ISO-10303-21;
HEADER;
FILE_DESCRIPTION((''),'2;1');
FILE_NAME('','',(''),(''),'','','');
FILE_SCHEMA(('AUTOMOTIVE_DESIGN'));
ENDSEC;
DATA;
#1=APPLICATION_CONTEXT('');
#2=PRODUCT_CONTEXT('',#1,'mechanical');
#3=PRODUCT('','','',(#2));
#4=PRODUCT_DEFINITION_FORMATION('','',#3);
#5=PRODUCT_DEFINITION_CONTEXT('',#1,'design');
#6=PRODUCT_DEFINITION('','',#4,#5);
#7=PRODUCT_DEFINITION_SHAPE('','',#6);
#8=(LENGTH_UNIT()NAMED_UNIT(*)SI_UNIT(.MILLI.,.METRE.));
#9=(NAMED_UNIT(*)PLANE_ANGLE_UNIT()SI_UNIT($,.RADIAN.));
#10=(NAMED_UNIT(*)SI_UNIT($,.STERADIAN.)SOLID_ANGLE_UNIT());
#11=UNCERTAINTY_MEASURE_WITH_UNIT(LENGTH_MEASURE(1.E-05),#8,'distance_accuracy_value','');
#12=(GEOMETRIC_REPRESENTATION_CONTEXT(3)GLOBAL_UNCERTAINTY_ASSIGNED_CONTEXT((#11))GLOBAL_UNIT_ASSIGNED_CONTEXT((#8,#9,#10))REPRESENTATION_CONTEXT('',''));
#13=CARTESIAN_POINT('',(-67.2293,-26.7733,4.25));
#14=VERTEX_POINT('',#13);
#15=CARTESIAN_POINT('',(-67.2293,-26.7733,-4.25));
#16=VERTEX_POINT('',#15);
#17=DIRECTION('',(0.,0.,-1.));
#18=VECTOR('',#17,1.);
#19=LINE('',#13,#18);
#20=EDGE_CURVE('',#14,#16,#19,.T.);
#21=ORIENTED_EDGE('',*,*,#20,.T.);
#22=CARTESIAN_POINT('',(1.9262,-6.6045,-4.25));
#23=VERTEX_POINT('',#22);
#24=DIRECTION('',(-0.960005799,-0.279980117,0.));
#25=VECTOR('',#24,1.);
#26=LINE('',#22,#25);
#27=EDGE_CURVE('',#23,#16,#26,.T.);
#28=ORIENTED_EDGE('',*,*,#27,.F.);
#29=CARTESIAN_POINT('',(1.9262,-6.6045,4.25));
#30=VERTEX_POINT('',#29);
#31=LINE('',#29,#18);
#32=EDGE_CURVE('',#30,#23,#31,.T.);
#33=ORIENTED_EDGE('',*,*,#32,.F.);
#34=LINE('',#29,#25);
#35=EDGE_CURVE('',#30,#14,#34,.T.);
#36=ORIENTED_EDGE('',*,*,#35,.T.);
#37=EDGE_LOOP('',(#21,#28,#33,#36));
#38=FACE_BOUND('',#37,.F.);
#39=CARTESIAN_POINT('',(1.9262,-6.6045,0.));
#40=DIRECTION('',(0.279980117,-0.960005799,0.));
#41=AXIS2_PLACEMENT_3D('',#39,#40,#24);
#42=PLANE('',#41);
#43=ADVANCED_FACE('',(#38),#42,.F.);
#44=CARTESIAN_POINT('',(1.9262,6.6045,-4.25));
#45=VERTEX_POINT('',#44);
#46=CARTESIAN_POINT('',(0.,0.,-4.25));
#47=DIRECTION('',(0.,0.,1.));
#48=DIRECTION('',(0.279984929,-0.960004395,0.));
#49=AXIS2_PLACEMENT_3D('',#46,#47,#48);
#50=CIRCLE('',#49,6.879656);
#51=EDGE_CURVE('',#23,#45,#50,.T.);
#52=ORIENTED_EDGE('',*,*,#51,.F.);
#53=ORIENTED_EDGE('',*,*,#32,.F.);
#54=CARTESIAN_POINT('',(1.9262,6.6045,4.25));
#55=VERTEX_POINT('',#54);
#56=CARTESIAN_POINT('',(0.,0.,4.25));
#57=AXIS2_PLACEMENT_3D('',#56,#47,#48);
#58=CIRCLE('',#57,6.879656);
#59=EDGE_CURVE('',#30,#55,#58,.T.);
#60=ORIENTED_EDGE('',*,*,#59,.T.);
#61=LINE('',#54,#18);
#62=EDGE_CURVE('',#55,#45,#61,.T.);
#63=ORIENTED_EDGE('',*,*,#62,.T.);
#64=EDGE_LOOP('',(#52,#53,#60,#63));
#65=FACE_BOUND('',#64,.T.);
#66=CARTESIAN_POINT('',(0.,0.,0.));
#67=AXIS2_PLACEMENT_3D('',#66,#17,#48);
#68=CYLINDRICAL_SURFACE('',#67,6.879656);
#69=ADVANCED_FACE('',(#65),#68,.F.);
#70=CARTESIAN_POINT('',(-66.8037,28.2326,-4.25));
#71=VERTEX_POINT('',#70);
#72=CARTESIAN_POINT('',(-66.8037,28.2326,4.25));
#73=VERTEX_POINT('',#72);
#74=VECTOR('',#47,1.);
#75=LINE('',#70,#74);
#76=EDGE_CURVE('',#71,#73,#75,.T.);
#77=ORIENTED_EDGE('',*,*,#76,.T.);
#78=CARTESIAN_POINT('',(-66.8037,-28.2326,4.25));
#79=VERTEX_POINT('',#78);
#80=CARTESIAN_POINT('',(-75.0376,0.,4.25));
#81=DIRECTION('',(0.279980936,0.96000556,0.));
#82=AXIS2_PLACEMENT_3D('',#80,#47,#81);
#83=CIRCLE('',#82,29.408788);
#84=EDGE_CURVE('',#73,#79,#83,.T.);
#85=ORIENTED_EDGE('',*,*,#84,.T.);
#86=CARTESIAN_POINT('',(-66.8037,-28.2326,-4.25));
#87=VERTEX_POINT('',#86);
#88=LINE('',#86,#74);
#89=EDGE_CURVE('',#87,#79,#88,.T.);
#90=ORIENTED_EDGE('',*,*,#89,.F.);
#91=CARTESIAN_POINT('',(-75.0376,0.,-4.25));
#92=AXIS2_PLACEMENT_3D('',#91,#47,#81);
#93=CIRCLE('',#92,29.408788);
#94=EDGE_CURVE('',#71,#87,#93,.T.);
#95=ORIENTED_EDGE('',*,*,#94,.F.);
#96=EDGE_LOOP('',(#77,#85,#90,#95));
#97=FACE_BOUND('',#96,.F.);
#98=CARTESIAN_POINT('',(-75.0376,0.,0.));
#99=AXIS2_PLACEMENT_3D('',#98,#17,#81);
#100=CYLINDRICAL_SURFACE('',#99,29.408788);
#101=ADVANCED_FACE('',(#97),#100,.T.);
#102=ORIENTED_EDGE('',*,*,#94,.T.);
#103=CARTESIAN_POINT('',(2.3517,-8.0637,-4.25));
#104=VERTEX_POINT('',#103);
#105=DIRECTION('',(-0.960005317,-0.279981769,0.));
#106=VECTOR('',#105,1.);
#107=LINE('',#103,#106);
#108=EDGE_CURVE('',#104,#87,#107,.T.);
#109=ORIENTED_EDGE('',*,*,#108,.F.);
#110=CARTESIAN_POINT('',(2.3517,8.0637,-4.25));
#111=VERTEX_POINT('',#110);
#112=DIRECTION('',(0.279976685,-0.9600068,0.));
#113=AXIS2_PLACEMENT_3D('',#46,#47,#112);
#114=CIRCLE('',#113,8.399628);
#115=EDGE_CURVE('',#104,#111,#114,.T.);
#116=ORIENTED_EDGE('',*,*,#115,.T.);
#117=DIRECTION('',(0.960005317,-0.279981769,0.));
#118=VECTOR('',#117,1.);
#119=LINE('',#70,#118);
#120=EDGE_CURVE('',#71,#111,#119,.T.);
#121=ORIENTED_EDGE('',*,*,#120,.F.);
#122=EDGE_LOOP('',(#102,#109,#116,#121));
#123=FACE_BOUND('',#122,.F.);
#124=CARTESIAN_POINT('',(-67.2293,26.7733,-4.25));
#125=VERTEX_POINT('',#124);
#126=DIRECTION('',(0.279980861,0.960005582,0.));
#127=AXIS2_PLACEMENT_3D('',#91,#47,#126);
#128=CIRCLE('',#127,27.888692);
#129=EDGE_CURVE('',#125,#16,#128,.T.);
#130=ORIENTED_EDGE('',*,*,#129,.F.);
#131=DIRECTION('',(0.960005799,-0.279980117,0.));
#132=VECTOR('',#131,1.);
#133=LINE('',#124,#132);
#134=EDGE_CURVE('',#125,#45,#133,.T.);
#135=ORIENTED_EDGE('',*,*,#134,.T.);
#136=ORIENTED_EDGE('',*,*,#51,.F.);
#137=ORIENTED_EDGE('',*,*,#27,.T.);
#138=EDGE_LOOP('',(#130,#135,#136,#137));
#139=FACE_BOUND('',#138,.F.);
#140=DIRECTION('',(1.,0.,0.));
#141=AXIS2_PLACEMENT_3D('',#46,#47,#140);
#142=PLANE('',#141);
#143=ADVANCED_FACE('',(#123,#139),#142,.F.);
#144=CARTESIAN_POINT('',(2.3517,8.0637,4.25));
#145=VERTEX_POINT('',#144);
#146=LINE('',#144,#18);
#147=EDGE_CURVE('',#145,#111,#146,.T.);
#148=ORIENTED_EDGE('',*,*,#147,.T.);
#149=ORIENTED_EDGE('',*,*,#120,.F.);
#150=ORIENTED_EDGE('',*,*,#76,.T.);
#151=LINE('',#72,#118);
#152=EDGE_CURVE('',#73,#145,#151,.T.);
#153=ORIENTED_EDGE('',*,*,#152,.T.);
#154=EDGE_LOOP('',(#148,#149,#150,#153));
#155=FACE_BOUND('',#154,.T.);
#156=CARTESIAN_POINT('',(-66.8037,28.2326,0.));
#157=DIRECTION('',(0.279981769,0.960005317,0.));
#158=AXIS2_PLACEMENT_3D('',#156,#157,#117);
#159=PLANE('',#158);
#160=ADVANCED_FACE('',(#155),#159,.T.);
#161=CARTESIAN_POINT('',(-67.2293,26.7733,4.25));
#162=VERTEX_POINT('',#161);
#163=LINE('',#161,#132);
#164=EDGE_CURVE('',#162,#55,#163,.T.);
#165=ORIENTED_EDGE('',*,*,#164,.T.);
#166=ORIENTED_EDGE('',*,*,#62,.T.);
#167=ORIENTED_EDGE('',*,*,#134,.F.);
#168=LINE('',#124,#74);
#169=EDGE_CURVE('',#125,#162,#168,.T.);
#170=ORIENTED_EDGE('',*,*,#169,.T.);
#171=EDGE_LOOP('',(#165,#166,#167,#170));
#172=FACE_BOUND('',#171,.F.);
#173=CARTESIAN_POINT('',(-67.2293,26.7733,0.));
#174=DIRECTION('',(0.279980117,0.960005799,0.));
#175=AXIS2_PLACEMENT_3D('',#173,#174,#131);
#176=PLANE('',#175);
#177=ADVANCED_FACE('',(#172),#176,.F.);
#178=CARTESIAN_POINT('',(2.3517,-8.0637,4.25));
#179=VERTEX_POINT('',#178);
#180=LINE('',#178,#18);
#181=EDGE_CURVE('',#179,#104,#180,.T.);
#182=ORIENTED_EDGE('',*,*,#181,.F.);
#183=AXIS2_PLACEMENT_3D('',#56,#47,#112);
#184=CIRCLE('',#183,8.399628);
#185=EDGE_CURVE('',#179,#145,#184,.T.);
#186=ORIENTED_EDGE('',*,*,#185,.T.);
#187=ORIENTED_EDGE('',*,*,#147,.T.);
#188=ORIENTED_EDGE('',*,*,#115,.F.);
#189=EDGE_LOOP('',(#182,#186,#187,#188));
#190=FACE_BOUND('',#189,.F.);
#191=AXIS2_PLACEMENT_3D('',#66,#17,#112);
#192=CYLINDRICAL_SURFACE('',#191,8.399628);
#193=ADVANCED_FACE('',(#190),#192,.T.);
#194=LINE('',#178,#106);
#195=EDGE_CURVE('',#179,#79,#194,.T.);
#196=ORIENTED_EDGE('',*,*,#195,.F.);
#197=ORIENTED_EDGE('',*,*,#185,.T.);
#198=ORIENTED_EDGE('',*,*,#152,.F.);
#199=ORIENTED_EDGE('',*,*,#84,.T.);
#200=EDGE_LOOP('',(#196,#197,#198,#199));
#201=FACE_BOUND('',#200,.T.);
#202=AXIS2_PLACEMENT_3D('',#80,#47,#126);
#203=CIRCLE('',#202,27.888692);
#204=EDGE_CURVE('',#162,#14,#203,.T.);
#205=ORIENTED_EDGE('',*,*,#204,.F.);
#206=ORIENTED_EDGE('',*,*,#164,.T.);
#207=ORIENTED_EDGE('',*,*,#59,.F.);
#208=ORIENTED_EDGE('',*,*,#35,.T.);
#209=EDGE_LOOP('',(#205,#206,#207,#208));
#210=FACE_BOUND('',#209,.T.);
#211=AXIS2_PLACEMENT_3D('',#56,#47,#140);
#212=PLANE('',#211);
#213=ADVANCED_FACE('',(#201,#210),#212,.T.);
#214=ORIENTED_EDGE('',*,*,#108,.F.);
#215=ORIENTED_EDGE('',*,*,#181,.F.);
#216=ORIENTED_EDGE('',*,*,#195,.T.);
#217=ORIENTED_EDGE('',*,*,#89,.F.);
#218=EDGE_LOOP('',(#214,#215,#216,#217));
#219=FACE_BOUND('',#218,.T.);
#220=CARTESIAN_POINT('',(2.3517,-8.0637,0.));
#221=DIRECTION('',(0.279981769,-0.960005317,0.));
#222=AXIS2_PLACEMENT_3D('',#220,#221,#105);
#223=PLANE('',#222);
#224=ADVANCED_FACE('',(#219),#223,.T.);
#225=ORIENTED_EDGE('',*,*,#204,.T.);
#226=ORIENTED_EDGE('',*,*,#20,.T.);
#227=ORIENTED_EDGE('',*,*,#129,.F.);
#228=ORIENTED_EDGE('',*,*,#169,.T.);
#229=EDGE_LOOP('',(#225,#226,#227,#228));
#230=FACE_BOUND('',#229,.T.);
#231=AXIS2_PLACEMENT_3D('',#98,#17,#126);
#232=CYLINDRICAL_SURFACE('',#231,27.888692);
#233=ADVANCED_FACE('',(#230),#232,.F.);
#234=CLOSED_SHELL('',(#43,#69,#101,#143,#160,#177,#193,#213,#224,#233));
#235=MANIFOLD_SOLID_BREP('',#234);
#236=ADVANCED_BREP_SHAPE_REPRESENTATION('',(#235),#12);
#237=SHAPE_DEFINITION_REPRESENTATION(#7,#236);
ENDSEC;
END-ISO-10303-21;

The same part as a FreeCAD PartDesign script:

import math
import FreeCAD as App
import Part
import Sketcher

V = App.Vector
Q = App.Units.Quantity

doc = App.newDocument("Part")
body = doc.addObject("PartDesign::Body", "Body")

# Sketch on XY plane
sketch1 = body.newObject("Sketcher::SketchObject", "Sketch")
sketch1.AttachmentSupport = (doc.getObject("XY_Plane"), [""])
sketch1.MapMode = "FlatFace"
sketch1.addGeometry([
    Part.LineSegment(V(2.3517, 8.0637, 0), V(-66.8037, 28.2326, 0)),  # 0
    Part.ArcOfCircle(Part.Circle(V(-75.0376, 0, 0), V(0, 0, 1), 29.408788), math.radians(73.740933), math.radians(286.259067)),  # 1
    Part.LineSegment(V(-66.8037, -28.2326, 0), V(2.3517, -8.0637, 0)),  # 2
    Part.ArcOfCircle(Part.Circle(V(0, 0, 0), V(0, 0, 1), 8.399628), math.radians(-73.741187), math.radians(73.741187)),  # 3
    Part.ArcOfCircle(Part.Circle(V(-75.0376, 0, 0), V(0, 0, 1), 27.888692), math.radians(73.740938), math.radians(286.259062)),  # 4
    Part.LineSegment(V(-67.2293, 26.7733, 0), V(1.9262, 6.6045, 0)),  # 5
    Part.ArcOfCircle(Part.Circle(V(0, 0, 0), V(0, 0, 1), 6.879656), math.radians(-73.740695), math.radians(73.740695)),  # 6
    Part.LineSegment(V(1.9262, -6.6045, 0), V(-67.2293, -26.7733, 0)),  # 7
], False)
sketch1.addConstraint([
    Sketcher.Constraint("Tangent", 0, 2, 1, 1),
    Sketcher.Constraint("Tangent", 1, 2, 2, 1),
    Sketcher.Constraint("Tangent", 2, 2, 3, 1),
    Sketcher.Constraint("Tangent", 3, 2, 0, 1),
    Sketcher.Constraint("Tangent", 4, 1, 5, 1),
    Sketcher.Constraint("Tangent", 5, 2, 6, 2),
    Sketcher.Constraint("Tangent", 6, 1, 7, 1),
    Sketcher.Constraint("Tangent", 7, 2, 4, 2),
    Sketcher.Constraint("Coincident", 3, 3, -1, 1),
    Sketcher.Constraint("Coincident", 6, 3, -1, 1),
    Sketcher.Constraint("Coincident", 4, 3, 1, 3),
    Sketcher.Constraint("PointOnObject", 1, 3, -1),
    Sketcher.Constraint("Parallel", 0, 5),
    Sketcher.Constraint("Angle", 0, Q("163.741 deg")),
    Sketcher.Constraint("Radius", 1, 29.4088),
    Sketcher.Constraint("Radius", 3, 8.3996),
    Sketcher.Constraint("Radius", 4, 27.8887),
])
pad1 = body.newObject("PartDesign::Pad", "Pad")
pad1.Profile = sketch1
pad1.Length = 8.5
pad1.Midplane = True

doc.recompute()
